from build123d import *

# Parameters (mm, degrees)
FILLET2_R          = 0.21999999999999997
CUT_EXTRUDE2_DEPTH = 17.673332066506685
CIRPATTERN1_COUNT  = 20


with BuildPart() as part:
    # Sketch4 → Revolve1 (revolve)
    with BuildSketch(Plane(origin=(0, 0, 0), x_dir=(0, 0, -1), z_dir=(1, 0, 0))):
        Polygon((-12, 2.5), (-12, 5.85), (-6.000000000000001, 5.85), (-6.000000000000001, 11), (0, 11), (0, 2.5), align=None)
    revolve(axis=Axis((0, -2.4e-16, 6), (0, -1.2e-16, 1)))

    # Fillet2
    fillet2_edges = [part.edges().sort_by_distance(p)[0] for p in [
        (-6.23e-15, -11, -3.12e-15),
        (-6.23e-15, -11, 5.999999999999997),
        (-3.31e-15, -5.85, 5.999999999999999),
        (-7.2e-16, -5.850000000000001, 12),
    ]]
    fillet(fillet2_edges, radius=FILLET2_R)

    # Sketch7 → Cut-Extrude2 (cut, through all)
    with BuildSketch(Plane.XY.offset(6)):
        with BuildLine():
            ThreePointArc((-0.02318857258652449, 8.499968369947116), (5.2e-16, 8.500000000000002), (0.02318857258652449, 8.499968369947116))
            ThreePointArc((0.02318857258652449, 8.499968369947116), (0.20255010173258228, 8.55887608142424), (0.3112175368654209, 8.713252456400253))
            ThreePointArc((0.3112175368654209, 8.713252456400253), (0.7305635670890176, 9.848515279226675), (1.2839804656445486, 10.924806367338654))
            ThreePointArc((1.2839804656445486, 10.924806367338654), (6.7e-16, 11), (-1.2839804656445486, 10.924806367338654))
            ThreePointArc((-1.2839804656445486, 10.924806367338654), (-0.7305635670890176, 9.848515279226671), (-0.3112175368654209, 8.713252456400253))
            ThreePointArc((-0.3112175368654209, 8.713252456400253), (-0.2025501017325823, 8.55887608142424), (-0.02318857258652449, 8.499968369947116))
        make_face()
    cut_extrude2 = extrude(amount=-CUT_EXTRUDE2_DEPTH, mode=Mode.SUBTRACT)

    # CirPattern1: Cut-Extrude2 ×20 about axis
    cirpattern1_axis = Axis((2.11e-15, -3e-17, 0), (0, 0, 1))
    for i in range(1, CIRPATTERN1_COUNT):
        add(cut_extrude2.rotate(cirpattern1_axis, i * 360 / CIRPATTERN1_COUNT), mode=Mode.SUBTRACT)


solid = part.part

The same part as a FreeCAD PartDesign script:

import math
import FreeCAD as App
import Part
import Sketcher
from FreeCAD import Vector
Q = App.Units.Quantity


def edges_at(feature, points):
    """Names of the edges that pass closest to the given points."""
    edges = feature.Shape.Edges
    near = lambda p: min(range(len(edges)), key=lambda i: edges[i].distToShape(Part.Vertex(*p))[0])
    return sorted({f"Edge{near(p) + 1}" for p in points})

doc = App.newDocument("Part")
body = doc.addObject("PartDesign::Body", "Body")

sketch1 = doc.addObject("Sketcher::SketchObject", "Sketch")
body.addObject(sketch1)
sketch1.AttachmentSupport = (doc.YZ_Plane, [""])
sketch1.MapMode = "FlatFace"
sketch1.addGeometry(Part.LineSegment(Vector(5.85, 12, 0), Vector(2.5, 12, 0)), False)
sketch1.addGeometry(Part.LineSegment(Vector(2.5, 12, 0), Vector(2.5, 0, 0)), False)
sketch1.addGeometry(Part.LineSegment(Vector(2.5, 0, 0), Vector(11, 0, 0)), False)
sketch1.addGeometry(Part.LineSegment(Vector(11, 0, 0), Vector(11, 6, 0)), False)
sketch1.addGeometry(Part.LineSegment(Vector(11, 6, 0), Vector(5.85, 6, 0)), False)
sketch1.addGeometry(Part.LineSegment(Vector(5.85, 6, 0), Vector(5.85, 12, 0)), False)
sketch1.addConstraint(Sketcher.Constraint("Coincident", 0, 2, 1, 1))
sketch1.addConstraint(Sketcher.Constraint("Coincident", 1, 2, 2, 1))
sketch1.addConstraint(Sketcher.Constraint("Coincident", 2, 2, 3, 1))
sketch1.addConstraint(Sketcher.Constraint("Coincident", 3, 2, 4, 1))
sketch1.addConstraint(Sketcher.Constraint("Coincident", 4, 2, 5, 1))
sketch1.addConstraint(Sketcher.Constraint("Coincident", 5, 2, 0, 1))
sketch1.addConstraint(Sketcher.Constraint("Horizontal", 0))
sketch1.addConstraint(Sketcher.Constraint("Vertical", 1))
sketch1.addConstraint(Sketcher.Constraint("Horizontal", 2))
sketch1.addConstraint(Sketcher.Constraint("Vertical", 3))
sketch1.addConstraint(Sketcher.Constraint("Horizontal", 4))
sketch1.addConstraint(Sketcher.Constraint("Vertical", 5))
sketch1.addConstraint(Sketcher.Constraint("PointOnObject", 1, 2, -1))
sketch1.addConstraint(Sketcher.Constraint("Equal", 3, 5))
sketch1.addConstraint(Sketcher.Constraint("DistanceY", 1, 2, 1, 1, Q("12 mm")))
sketch1.addConstraint(Sketcher.Constraint("DistanceX", 2, 1, 2, 2, Q("8.5 mm")))
sketch1.addConstraint(Sketcher.Constraint("DistanceX", -1, 1, 2, 2, Q("11 mm")))
sketch1.addConstraint(Sketcher.Constraint("DistanceX", 0, 2, 0, 1, Q("3.35 mm")))
revolution = doc.addObject("PartDesign::Revolution", "Revolution")
body.addObject(revolution)
revolution.Profile = sketch1
revolution.ReferenceAxis = (sketch1, ["V_Axis"])
revolution.Angle = 360
doc.recompute()

fillet = doc.addObject("PartDesign::Fillet", "Fillet")
body.addObject(fillet)
fillet.Base = (revolution, edges_at(revolution, [
    (0, -11, 0),
    (0, -11, 6),
    (0, -5.85, 6),
    (0, -5.85, 12),
]))
fillet.Radius = 0.22

sketch2 = doc.addObject("Sketcher::SketchObject", "Sketch001")
body.addObject(sketch2)
sketch2.AttachmentSupport = (doc.XY_Plane, [""])
sketch2.MapMode = "FlatFace"
sketch2.AttachmentOffset = App.Placement(Vector(0, 0, 6), App.Rotation())
sketch2.addGeometry(Part.ArcOfCircle(Part.Circle(Vector(0, 0, 0), Vector(0, 0, 1), 8.5), math.radians(89.843693), math.radians(90.156307)), False)
sketch2.addGeometry(Part.ArcOfCircle(Part.Circle(Vector(0.024007, 8.799989, 0), Vector(0, 0, 1), 0.300022), math.radians(-90.156307), math.radians(-16.804147)), False)
sketch2.addGeometry(Part.ArcOfCircle(Part.Circle(Vector(9.884203, 5.822242, 0), Vector(0, 0, 1), 10), math.radians(149.319085), math.radians(163.195853)), False)
sketch2.addGeometry(Part.ArcOfCircle(Part.Circle(Vector(0, 0, 0), Vector(0, 0, 1), 11), math.radians(83.296841), math.radians(96.703159)), False)
sketch2.addGeometry(Part.ArcOfCircle(Part.Circle(Vector(-9.884203, 5.822242, 0), Vector(0, 0, 1), 10), math.radians(16.804147), math.radians(30.680915)), False)
sketch2.addGeometry(Part.ArcOfCircle(Part.Circle(Vector(-0.024007, 8.799989, 0), Vector(0, 0, 1), 0.300022), math.radians(-163.195853), math.radians(-89.843693)), False)
sketch2.addConstraint(Sketcher.Constraint("Tangent", 0, 1, 1, 1))
sketch2.addConstraint(Sketcher.Constraint("Tangent", 1, 2, 2, 2))
sketch2.addConstraint(Sketcher.Constraint("Coincident", 2, 1, 3, 1))
sketch2.addConstraint(Sketcher.Constraint("Coincident", 3, 2, 4, 2))
sketch2.addConstraint(Sketcher.Constraint("Tangent", 4, 1, 5, 1))
sketch2.addConstraint(Sketcher.Constraint("Tangent", 5, 2, 0, 2))
sketch2.addConstraint(Sketcher.Constraint("Coincident", 0, 3, -1, 1))
sketch2.addConstraint(Sketcher.Constraint("Coincident", 3, 3, -1, 1))
sketch2.addConstraint(Sketcher.Constraint("Equal", 2, 4))
sketch2.addConstraint(Sketcher.Constraint("Equal", 1, 5))
sketch2.addConstraint(Sketcher.Constraint("Symmetric", 2, 3, 4, 3, -2))
sketch2.addConstraint(Sketcher.Constraint("Radius", 2, Q("10 mm")))
sketch2.addConstraint(Sketcher.Constraint("Radius", 3, Q("11 mm")))
sketch2.addConstraint(Sketcher.Constraint("Radius", 0, Q("8.5 mm")))
sketch2.addConstraint(Sketcher.Constraint("Radius", 1, Q("0.300022 mm")))
sketch2.addConstraint(Sketcher.Constraint("DistanceX", 3, 2, 1, 2, Q("1.595198 mm")))
sketch2.addConstraint(Sketcher.Constraint("DistanceY", -1, 1, 2, 3, Q("5.822242 mm")))
pocket1 = doc.addObject("PartDesign::Pocket", "Pocket")
body.addObject(pocket1)
pocket1.Profile = sketch2
pocket1.Type = "ThroughAll"
doc.recompute()

polarpattern = doc.addObject("PartDesign::PolarPattern", "PolarPattern")
body.addObject(polarpattern)
polarpattern.Originals = [pocket1]
polarpattern.Axis = (doc.Z_Axis, [""])
polarpattern.Angle = 360
polarpattern.Occurrences = 20
body.Tip = polarpattern

doc.recompute()
